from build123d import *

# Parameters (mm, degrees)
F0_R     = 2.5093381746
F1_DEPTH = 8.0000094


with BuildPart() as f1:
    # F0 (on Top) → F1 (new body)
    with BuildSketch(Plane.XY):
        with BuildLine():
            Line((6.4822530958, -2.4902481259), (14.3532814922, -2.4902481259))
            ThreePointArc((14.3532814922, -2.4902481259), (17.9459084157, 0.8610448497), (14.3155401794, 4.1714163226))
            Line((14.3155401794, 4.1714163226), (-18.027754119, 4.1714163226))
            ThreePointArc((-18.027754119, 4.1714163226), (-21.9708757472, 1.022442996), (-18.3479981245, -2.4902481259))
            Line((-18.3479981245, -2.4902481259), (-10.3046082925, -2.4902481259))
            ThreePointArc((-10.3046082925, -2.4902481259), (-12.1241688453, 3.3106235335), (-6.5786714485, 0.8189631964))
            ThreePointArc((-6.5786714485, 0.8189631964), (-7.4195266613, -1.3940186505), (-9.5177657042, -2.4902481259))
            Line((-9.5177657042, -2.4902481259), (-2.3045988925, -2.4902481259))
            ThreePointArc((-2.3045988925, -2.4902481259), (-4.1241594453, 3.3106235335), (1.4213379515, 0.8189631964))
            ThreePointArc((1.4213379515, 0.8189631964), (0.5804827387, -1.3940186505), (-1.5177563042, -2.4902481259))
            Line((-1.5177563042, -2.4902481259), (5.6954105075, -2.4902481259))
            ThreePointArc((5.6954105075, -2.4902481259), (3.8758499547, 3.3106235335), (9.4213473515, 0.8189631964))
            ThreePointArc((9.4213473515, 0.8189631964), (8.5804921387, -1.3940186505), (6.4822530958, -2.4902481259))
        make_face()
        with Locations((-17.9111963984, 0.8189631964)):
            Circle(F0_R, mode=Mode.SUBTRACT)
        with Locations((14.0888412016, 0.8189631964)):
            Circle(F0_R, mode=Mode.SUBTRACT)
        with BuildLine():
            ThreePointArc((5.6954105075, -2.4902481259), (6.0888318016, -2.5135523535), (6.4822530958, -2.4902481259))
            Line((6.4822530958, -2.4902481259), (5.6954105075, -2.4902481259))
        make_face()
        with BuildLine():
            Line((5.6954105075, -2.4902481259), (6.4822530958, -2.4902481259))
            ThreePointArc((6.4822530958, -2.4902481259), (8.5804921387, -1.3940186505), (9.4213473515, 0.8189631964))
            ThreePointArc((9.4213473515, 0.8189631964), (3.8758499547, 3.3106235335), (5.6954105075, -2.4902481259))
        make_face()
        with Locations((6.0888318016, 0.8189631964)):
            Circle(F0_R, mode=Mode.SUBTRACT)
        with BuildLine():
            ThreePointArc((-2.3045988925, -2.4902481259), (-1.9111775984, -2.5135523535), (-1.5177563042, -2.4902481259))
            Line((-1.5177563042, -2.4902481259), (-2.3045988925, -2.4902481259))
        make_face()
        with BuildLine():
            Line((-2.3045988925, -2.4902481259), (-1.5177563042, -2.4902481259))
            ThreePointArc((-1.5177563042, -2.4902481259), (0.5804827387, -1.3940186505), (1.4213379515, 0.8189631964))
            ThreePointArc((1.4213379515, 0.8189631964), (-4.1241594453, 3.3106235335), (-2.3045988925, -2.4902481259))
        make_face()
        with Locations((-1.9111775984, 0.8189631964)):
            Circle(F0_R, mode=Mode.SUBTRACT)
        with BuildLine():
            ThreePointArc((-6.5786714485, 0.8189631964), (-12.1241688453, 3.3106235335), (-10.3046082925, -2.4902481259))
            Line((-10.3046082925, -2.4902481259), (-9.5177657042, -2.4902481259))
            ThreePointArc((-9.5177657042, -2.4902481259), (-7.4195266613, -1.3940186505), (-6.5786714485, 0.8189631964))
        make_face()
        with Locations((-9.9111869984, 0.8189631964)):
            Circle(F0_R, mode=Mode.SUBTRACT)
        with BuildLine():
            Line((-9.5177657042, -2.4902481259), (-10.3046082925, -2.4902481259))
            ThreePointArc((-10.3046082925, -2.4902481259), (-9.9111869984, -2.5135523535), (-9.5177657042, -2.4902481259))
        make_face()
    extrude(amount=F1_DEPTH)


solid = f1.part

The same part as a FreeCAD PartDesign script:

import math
import FreeCAD as App
import Part
import Sketcher
from FreeCAD import Vector

doc = App.newDocument("Part")
params = doc.addObject("Spreadsheet::Sheet", "Params")
for row, (alias, value) in enumerate([
    ("pad1_length", "8.000009 mm"),
], start=1):
    params.set(f"A{row}", alias)
    params.set(f"B{row}", "=" + value)
    params.setAlias(f"B{row}", alias)

body = doc.addObject("PartDesign::Body", "Body")

sketch1 = body.newObject("Sketcher::SketchObject", "Sketch")
sketch1.AttachmentSupport = (doc.getObject("XY_Plane"), [""])
sketch1.MapMode = "FlatFace"
sketch1.addGeometry(Part.LineSegment(Vector(6.5, -2.5, 0), Vector(14.4, -2.5, 0)), False)
sketch1.addGeometry(Part.ArcOfCircle(Part.Circle(Vector(14.6, 0.8, 0), Vector(0, 0, 1), 3.3), math.radians(-94), math.radians(95)), False)
sketch1.addGeometry(Part.LineSegment(Vector(14.3, 4.2, 0), Vector(-18, 4.2, 0)), False)
sketch1.addGeometry(Part.ArcOfCircle(Part.Circle(Vector(-18.6, 0.9, 0), Vector(0, 0, 1), 3.4), math.radians(80), math.radians(275)), False)
sketch1.addGeometry(Part.LineSegment(Vector(-18.3, -2.5, 0), Vector(-10.3, -2.5, 0)), False)
sketch1.addGeometry(Part.ArcOfCircle(Part.Circle(Vector(-9.9, 0.8, 0), Vector(0, 0, 1), 3.3), math.radians(-96.78), math.radians(-83.22)), False)
sketch1.addGeometry(Part.LineSegment(Vector(-9.5, -2.5, 0), Vector(-2.3, -2.5, 0)), False)
sketch1.addGeometry(Part.ArcOfCircle(Part.Circle(Vector(-1.9, 0.8, 0), Vector(0, 0, 1), 3.3), math.radians(-96.78), math.radians(-83.22)), False)
sketch1.addGeometry(Part.LineSegment(Vector(-1.5, -2.5, 0), Vector(5.7, -2.5, 0)), False)
sketch1.addGeometry(Part.ArcOfCircle(Part.Circle(Vector(6.1, 0.8, 0), Vector(0, 0, 1), 3.3), math.radians(-96.78), math.radians(-83.22)), False)
sketch1.addGeometry(Part.Circle(Vector(-17.9, 0.8, 0), Vector(0, 0, 1), 2.5), False)
sketch1.addGeometry(Part.Circle(Vector(-9.9, 0.8, 0), Vector(0, 0, 1), 2.5), False)
sketch1.addGeometry(Part.Circle(Vector(-1.9, 0.8, 0), Vector(0, 0, 1), 2.5), False)
sketch1.addGeometry(Part.Circle(Vector(6.1, 0.8, 0), Vector(0, 0, 1), 2.5), False)
sketch1.addGeometry(Part.Circle(Vector(14.1, 0.8, 0), Vector(0, 0, 1), 2.5), False)
sketch1.addConstraint(Sketcher.Constraint("Coincident", 0, 2, 1, 1))
sketch1.addConstraint(Sketcher.Constraint("Coincident", 1, 2, 2, 1))
sketch1.addConstraint(Sketcher.Constraint("Coincident", 2, 2, 3, 1))
sketch1.addConstraint(Sketcher.Constraint("Coincident", 3, 2, 4, 1))
sketch1.addConstraint(Sketcher.Constraint("Coincident", 4, 2, 5, 1))
sketch1.addConstraint(Sketcher.Constraint("Coincident", 5, 2, 6, 1))
sketch1.addConstraint(Sketcher.Constraint("Coincident", 6, 2, 7, 1))
sketch1.addConstraint(Sketcher.Constraint("Coincident", 7, 2, 8, 1))
sketch1.addConstraint(Sketcher.Constraint("Coincident", 8, 2, 9, 1))
sketch1.addConstraint(Sketcher.Constraint("Coincident", 9, 2, 0, 1))
sketch1.addConstraint(Sketcher.Constraint("Horizontal", 0))
sketch1.addConstraint(Sketcher.Constraint("Horizontal", 2))
sketch1.addConstraint(Sketcher.Constraint("Horizontal", 4))
sketch1.addConstraint(Sketcher.Constraint("Horizontal", 6))
sketch1.addConstraint(Sketcher.Constraint("Horizontal", 8))
sketch1.addConstraint(Sketcher.Constraint("Coincident", 11, 3, 5, 3))
sketch1.addConstraint(Sketcher.Constraint("Coincident", 12, 3, 7, 3))
sketch1.addConstraint(Sketcher.Constraint("Coincident", 13, 3, 9, 3))
sketch1.addConstraint(Sketcher.Constraint("Equal", 5, 7))
sketch1.addConstraint(Sketcher.Constraint("Equal", 7, 9))
sketch1.addConstraint(Sketcher.Constraint("Equal", 10, 11))
sketch1.addConstraint(Sketcher.Constraint("Equal", 11, 12))
sketch1.addConstraint(Sketcher.Constraint("Equal", 12, 13))
sketch1.addConstraint(Sketcher.Constraint("Equal", 13, 14))
sketch1.addConstraint(Sketcher.Constraint("Horizontal", 5, 3, 7, 3))
sketch1.addConstraint(Sketcher.Constraint("Horizontal", 7, 3, 9, 3))
sketch1.addConstraint(Sketcher.Constraint("Horizontal", 9, 3, 10, 3))
sketch1.addConstraint(Sketcher.Constraint("Horizontal", 13, 3, 14, 3))
sketch1.addConstraint(Sketcher.Constraint("Horizontal", 0, 2, 3, 2))
sketch1.addConstraint(Sketcher.Constraint("Horizontal", 4, 2, 5, 2))
sketch1.addConstraint(Sketcher.Constraint("Horizontal", 6, 2, 7, 2))
sketch1.addConstraint(Sketcher.Constraint("Equal", 6, 8))
sketch1.addConstraint(Sketcher.Constraint("Radius", 1, 3.341792))
sketch1.addConstraint(Sketcher.Constraint("Diameter", 10, 5.018676))
sketch1.addConstraint(Sketcher.Constraint("DistanceX", 3, 2, -1, 1, 18.347998))
sketch1.addConstraint(Sketcher.Constraint("Radius", 3, 3.361733))
sketch1.addConstraint(Sketcher.Constraint("Radius", 5, 3.332516))
sketch1.addConstraint(Sketcher.Constraint("DistanceX", 0, 1, 0, 2, 7.871028))
sketch1.addConstraint(Sketcher.Constraint("DistanceX", 4, 1, 4, 2, 8.04339))
sketch1.addConstraint(Sketcher.Constraint("DistanceX", 6, 2, -1, 1, 2.304599))
sketch1.addConstraint(Sketcher.Constraint("DistanceX", 14, 3, 1, 2, 0.226699))
sketch1.addConstraint(Sketcher.Constraint("DistanceX", 3, 2, 10, 3, 0.436802))
sketch1.addConstraint(Sketcher.Constraint("DistanceX", 2, 2, 2, 1, 32.343294))
sketch1.addConstraint(Sketcher.Constraint("DistanceX", 6, 1, 6, 2, 7.213167))
sketch1.addConstraint(Sketcher.Constraint("DistanceX", -1, 1, 1, 3, 14.60417))
sketch1.addConstraint(Sketcher.Constraint("DistanceX", 3, 3, -1, 1, 18.613021))
sketch1.addConstraint(Sketcher.Constraint("DistanceY", -1, 1, 3, 3, 0.861022))
pad1 = body.newObject("PartDesign::Pad", "Pad")
pad1.Profile = sketch1
pad1.setExpression("Length", "Params.pad1_length")

doc.recompute()
